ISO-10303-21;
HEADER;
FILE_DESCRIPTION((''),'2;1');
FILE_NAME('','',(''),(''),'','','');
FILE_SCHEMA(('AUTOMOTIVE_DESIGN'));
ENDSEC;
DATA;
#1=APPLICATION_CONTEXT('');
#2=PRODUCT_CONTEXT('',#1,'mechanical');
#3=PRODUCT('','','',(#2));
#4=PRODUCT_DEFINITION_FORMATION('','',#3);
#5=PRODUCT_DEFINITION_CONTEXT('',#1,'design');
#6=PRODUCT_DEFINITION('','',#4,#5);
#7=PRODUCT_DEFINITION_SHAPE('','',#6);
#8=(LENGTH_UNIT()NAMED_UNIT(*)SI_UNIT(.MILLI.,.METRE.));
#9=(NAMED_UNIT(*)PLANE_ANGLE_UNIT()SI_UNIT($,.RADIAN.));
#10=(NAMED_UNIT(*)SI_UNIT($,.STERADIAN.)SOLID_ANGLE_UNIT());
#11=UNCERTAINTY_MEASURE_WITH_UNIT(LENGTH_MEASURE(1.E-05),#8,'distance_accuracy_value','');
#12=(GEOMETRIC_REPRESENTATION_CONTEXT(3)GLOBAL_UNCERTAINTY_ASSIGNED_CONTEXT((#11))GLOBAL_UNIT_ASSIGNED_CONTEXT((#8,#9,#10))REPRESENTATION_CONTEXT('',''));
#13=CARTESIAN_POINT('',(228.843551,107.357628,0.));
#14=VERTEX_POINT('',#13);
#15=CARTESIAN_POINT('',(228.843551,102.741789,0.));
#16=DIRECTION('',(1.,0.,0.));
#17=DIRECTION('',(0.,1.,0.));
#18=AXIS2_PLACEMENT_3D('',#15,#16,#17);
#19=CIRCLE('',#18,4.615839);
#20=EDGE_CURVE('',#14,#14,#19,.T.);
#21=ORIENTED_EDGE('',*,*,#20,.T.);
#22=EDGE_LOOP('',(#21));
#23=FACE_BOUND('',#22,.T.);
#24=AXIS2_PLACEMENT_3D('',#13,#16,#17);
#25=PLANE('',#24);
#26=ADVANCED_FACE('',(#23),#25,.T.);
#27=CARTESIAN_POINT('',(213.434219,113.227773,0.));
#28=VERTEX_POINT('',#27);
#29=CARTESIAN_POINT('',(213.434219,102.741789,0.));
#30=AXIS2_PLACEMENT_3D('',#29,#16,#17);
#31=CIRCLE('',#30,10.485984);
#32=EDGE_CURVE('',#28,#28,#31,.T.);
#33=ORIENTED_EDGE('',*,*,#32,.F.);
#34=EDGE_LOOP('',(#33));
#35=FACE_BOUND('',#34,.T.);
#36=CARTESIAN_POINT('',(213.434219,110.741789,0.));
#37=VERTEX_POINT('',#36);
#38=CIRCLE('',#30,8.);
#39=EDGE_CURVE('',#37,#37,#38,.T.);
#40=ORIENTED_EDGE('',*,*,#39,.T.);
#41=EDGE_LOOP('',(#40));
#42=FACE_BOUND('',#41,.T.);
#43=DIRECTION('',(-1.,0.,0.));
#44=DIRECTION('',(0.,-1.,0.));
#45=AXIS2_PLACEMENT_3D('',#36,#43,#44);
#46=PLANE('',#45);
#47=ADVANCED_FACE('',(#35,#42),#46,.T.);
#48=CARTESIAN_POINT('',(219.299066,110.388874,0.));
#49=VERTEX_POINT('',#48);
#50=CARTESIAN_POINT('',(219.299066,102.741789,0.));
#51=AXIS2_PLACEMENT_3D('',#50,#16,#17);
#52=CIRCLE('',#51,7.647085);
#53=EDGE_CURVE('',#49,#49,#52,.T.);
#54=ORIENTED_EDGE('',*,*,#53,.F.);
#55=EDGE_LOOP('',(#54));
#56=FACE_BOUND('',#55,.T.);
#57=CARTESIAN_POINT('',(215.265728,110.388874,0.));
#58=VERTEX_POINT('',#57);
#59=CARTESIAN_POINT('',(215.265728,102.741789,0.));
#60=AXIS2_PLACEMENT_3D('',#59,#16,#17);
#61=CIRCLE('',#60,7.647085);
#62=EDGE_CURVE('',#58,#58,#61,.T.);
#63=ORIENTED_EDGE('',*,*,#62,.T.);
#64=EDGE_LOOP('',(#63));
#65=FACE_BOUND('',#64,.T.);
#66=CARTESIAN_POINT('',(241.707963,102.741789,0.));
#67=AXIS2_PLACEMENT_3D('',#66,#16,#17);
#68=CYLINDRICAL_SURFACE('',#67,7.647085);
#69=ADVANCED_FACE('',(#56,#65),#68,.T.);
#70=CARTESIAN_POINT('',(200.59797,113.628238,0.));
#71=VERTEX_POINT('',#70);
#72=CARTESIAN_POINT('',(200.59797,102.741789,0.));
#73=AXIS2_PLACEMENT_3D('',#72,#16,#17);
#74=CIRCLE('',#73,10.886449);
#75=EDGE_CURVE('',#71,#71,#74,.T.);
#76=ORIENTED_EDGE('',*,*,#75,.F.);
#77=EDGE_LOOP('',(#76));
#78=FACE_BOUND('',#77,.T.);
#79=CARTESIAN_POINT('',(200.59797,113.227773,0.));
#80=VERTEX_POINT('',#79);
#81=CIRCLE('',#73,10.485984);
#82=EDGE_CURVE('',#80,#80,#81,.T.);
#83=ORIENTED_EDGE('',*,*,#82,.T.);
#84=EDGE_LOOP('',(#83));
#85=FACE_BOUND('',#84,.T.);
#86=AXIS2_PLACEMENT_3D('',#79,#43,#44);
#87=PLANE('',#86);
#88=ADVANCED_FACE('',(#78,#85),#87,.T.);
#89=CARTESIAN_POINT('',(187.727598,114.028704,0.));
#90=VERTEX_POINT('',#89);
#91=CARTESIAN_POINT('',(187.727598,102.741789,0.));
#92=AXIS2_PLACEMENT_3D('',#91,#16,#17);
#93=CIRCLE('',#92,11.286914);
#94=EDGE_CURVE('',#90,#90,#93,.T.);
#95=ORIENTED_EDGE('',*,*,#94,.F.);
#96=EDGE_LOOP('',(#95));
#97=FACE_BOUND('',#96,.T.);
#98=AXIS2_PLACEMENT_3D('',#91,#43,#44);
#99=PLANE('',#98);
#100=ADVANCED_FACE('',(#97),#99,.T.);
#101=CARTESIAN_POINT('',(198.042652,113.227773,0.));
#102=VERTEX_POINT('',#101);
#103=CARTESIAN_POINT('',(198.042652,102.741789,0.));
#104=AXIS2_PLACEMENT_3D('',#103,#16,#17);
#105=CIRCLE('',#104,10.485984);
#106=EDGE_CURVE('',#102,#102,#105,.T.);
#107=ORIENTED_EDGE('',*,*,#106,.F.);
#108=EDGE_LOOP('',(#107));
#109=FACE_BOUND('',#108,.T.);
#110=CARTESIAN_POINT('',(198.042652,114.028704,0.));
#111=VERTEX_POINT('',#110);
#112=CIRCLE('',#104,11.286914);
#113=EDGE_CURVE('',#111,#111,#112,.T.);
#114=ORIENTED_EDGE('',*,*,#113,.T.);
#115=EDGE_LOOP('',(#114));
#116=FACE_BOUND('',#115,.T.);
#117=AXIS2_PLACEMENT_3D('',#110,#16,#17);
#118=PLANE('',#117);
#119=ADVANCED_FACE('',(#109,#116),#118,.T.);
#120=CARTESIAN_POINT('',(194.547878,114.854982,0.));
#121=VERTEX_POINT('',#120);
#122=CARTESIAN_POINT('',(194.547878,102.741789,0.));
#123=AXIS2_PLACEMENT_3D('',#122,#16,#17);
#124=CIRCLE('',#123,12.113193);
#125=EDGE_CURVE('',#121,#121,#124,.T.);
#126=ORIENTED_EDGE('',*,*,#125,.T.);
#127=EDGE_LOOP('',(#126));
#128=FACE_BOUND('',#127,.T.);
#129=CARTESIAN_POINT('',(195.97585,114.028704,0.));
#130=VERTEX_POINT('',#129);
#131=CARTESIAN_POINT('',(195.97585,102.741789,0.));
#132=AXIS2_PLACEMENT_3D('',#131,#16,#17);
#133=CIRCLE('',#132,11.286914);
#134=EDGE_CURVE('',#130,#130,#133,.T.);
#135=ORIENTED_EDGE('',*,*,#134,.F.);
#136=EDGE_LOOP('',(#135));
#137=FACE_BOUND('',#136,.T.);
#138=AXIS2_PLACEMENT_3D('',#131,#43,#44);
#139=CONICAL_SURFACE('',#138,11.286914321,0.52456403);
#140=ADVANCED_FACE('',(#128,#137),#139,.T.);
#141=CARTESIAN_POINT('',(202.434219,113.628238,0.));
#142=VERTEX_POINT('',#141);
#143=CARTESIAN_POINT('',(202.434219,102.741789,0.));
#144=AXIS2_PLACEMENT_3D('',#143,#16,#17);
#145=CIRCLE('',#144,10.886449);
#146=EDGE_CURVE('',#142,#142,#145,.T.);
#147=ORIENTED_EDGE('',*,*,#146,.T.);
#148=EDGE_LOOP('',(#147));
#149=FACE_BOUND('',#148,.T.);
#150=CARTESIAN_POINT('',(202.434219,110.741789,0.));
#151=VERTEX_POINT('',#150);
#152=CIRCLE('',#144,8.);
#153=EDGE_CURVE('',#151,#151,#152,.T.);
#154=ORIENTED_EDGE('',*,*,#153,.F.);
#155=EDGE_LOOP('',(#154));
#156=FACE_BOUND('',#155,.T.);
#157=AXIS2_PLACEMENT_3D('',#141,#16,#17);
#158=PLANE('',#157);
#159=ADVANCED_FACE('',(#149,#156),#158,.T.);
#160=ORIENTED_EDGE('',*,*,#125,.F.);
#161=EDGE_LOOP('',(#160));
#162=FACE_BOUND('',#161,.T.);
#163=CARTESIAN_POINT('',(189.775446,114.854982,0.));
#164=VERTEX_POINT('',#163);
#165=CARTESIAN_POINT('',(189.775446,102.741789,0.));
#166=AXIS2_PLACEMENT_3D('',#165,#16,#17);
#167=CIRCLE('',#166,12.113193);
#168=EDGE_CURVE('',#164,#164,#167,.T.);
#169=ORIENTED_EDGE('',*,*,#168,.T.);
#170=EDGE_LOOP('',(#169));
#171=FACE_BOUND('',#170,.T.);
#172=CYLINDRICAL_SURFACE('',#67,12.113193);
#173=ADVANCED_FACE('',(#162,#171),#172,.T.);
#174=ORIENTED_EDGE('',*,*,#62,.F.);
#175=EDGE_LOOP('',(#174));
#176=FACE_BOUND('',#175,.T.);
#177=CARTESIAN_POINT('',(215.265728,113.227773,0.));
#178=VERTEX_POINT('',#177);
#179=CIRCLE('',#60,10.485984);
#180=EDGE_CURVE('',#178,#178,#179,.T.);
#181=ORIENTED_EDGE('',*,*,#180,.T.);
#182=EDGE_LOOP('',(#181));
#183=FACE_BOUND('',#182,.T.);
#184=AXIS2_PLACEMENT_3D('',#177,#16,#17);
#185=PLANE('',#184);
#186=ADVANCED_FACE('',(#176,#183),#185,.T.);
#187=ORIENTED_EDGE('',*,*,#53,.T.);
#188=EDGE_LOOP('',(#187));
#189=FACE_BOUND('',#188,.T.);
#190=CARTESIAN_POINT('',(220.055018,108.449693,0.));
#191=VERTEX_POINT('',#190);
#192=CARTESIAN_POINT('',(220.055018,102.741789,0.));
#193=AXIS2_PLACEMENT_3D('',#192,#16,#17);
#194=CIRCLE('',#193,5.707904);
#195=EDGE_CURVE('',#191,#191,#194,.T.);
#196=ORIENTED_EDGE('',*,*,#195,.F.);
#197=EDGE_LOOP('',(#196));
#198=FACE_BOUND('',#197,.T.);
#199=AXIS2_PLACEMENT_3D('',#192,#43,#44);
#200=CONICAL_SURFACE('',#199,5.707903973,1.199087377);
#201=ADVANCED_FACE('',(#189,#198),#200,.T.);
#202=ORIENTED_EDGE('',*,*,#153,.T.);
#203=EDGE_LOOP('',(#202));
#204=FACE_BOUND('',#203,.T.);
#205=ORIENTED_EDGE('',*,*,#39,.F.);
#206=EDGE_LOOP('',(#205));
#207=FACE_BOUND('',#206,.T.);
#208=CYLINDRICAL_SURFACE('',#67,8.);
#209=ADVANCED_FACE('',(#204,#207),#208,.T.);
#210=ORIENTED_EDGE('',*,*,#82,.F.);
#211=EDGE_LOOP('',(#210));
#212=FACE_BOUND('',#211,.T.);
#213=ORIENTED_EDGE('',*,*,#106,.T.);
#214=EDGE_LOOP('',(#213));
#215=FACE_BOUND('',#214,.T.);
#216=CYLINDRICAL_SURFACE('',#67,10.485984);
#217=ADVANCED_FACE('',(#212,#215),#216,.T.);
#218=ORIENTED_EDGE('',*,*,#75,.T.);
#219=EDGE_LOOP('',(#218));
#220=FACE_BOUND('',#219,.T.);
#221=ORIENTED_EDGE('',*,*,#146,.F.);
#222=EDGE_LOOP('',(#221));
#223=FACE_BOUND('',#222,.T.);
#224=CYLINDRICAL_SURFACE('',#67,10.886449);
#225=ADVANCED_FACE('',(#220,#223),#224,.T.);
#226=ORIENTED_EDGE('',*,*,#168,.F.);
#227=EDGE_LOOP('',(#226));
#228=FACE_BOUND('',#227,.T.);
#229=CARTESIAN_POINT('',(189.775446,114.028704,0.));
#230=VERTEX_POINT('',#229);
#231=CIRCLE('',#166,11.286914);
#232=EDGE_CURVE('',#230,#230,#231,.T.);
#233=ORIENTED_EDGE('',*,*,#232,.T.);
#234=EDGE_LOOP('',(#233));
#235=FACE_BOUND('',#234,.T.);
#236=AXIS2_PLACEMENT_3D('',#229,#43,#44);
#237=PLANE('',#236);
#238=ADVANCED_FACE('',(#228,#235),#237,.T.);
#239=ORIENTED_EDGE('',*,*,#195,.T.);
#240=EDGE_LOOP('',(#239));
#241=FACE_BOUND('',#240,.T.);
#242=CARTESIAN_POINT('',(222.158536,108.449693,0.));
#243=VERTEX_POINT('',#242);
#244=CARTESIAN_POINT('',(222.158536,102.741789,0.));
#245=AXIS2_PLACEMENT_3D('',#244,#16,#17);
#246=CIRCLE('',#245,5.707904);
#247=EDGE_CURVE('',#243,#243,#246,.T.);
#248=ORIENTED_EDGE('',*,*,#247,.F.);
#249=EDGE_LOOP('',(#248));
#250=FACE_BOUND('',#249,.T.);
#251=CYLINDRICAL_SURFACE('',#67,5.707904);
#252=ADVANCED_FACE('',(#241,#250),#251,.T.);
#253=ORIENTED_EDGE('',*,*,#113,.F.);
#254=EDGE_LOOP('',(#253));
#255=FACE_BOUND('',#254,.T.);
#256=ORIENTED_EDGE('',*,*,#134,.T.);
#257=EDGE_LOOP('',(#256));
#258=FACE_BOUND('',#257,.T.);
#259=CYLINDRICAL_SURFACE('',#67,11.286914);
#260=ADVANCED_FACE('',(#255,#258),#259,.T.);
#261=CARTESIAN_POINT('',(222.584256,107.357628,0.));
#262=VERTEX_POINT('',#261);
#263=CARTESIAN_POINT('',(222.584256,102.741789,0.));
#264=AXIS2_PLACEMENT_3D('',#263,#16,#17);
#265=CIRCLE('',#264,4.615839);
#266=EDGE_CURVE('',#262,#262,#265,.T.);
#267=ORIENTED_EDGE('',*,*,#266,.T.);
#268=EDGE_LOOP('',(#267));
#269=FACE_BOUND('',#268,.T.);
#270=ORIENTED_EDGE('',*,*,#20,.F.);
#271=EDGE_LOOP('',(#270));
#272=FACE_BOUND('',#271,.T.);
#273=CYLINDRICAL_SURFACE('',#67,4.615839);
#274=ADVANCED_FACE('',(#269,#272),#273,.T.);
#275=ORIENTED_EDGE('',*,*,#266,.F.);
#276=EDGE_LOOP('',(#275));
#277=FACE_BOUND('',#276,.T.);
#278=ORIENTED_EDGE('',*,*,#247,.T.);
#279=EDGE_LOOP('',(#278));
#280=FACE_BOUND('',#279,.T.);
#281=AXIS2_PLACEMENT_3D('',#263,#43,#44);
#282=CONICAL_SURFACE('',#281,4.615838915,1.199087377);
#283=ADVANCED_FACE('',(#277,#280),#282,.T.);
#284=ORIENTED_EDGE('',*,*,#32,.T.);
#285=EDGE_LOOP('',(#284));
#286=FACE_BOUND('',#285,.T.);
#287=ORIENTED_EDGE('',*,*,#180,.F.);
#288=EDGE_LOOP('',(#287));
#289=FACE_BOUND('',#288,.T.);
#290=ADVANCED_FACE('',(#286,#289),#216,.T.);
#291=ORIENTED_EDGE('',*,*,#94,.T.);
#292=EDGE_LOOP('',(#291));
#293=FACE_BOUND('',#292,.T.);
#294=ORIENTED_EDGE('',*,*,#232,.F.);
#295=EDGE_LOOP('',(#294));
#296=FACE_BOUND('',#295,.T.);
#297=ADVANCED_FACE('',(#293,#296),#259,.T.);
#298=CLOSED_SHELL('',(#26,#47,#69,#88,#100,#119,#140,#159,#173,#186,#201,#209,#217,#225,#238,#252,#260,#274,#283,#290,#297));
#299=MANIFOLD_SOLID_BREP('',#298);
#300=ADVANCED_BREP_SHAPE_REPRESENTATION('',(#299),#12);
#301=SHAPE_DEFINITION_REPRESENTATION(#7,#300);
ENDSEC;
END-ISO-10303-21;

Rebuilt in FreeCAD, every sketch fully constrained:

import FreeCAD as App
import Part
import Sketcher

V = App.Vector
Q = App.Units.Quantity

doc = App.newDocument("Part")
body = doc.addObject("PartDesign::Body", "Body")

# Sketch on XY plane
sketch1 = doc.addObject("Sketcher::SketchObject", "Sketch")
body.addObject(sketch1)
sketch1.AttachmentSupport = (doc.XY_Plane, [""])
sketch1.MapMode = "FlatFace"
sketch1.addGeometry(Part.LineSegment(V(187.727598, 114.028704, 0), V(187.727598, 102.741789, 0)), False)
sketch1.addGeometry(Part.LineSegment(V(187.727598, 102.741789, 0), V(228.843551, 102.741789, 0)), False)
sketch1.addGeometry(Part.LineSegment(V(228.843551, 102.741789, 0), V(228.843551, 107.357628, 0)), False)
sketch1.addGeometry(Part.LineSegment(V(228.843551, 107.357628, 0), V(222.584256, 107.357628, 0)), False)
sketch1.addGeometry(Part.LineSegment(V(222.584256, 107.357628, 0), V(222.158536, 108.449693, 0)), False)
sketch1.addGeometry(Part.LineSegment(V(222.158536, 108.449693, 0), V(220.055018, 108.449693, 0)), False)
sketch1.addGeometry(Part.LineSegment(V(220.055018, 108.449693, 0), V(219.299066, 110.388874, 0)), False)
sketch1.addGeometry(Part.LineSegment(V(219.299066, 110.388874, 0), V(215.265728, 110.388874, 0)), False)
sketch1.addGeometry(Part.LineSegment(V(215.265728, 110.388874, 0), V(215.265728, 113.227773, 0)), False)
sketch1.addGeometry(Part.LineSegment(V(215.265728, 113.227773, 0), V(213.434219, 113.227773, 0)), False)
sketch1.addGeometry(Part.LineSegment(V(213.434219, 113.227773, 0), V(213.434219, 110.741789, 0)), False)
sketch1.addGeometry(Part.LineSegment(V(213.434219, 110.741789, 0), V(202.434219, 110.741789, 0)), False)
sketch1.addGeometry(Part.LineSegment(V(202.434219, 110.741789, 0), V(202.434219, 113.628238, 0)), False)
sketch1.addGeometry(Part.LineSegment(V(202.434219, 113.628238, 0), V(200.59797, 113.628238, 0)), False)
sketch1.addGeometry(Part.LineSegment(V(200.59797, 113.628238, 0), V(200.59797, 113.227773, 0)), False)
sketch1.addGeometry(Part.LineSegment(V(200.59797, 113.227773, 0), V(198.042652, 113.227773, 0)), False)
sketch1.addGeometry(Part.LineSegment(V(198.042652, 113.227773, 0), V(198.042652, 114.028704, 0)), False)
sketch1.addGeometry(Part.LineSegment(V(198.042652, 114.028704, 0), V(195.97585, 114.028704, 0)), False)
sketch1.addGeometry(Part.LineSegment(V(195.97585, 114.028704, 0), V(194.547878, 114.854982, 0)), False)
sketch1.addGeometry(Part.LineSegment(V(194.547878, 114.854982, 0), V(189.775446, 114.854982, 0)), False)
sketch1.addGeometry(Part.LineSegment(V(189.775446, 114.854982, 0), V(189.775446, 114.028704, 0)), False)
sketch1.addGeometry(Part.LineSegment(V(189.775446, 114.028704, 0), V(187.727598, 114.028704, 0)), False)
sketch1.addGeometry(Part.LineSegment(V(228.843551, 102.741789, 0), V(187.727598, 102.741789, 0)), True)  # axis
sketch1.addConstraint(Sketcher.Constraint("Coincident", 0, 2, 1, 1))
sketch1.addConstraint(Sketcher.Constraint("Coincident", 1, 2, 2, 1))
sketch1.addConstraint(Sketcher.Constraint("Coincident", 2, 2, 3, 1))
sketch1.addConstraint(Sketcher.Constraint("Coincident", 3, 2, 4, 1))
sketch1.addConstraint(Sketcher.Constraint("Coincident", 4, 2, 5, 1))
sketch1.addConstraint(Sketcher.Constraint("Coincident", 5, 2, 6, 1))
sketch1.addConstraint(Sketcher.Constraint("Coincident", 6, 2, 7, 1))
sketch1.addConstraint(Sketcher.Constraint("Coincident", 7, 2, 8, 1))
sketch1.addConstraint(Sketcher.Constraint("Coincident", 8, 2, 9, 1))
sketch1.addConstraint(Sketcher.Constraint("Coincident", 9, 2, 10, 1))
sketch1.addConstraint(Sketcher.Constraint("Coincident", 10, 2, 11, 1))
sketch1.addConstraint(Sketcher.Constraint("Coincident", 11, 2, 12, 1))
sketch1.addConstraint(Sketcher.Constraint("Coincident", 12, 2, 13, 1))
sketch1.addConstraint(Sketcher.Constraint("Coincident", 13, 2, 14, 1))
sketch1.addConstraint(Sketcher.Constraint("Coincident", 14, 2, 15, 1))
sketch1.addConstraint(Sketcher.Constraint("Coincident", 15, 2, 16, 1))
sketch1.addConstraint(Sketcher.Constraint("Coincident", 16, 2, 17, 1))
sketch1.addConstraint(Sketcher.Constraint("Coincident", 17, 2, 18, 1))
sketch1.addConstraint(Sketcher.Constraint("Coincident", 18, 2, 19, 1))
sketch1.addConstraint(Sketcher.Constraint("Coincident", 19, 2, 20, 1))
sketch1.addConstraint(Sketcher.Constraint("Coincident", 20, 2, 21, 1))
sketch1.addConstraint(Sketcher.Constraint("Coincident", 21, 2, 0, 1))
sketch1.addConstraint(Sketcher.Constraint("Vertical", 0))
sketch1.addConstraint(Sketcher.Constraint("Horizontal", 1))
sketch1.addConstraint(Sketcher.Constraint("Vertical", 2))
sketch1.addConstraint(Sketcher.Constraint("Horizontal", 3))
sketch1.addConstraint(Sketcher.Constraint("Horizontal", 5))
sketch1.addConstraint(Sketcher.Constraint("Horizontal", 7))
sketch1.addConstraint(Sketcher.Constraint("Vertical", 8))
sketch1.addConstraint(Sketcher.Constraint("Horizontal", 9))
sketch1.addConstraint(Sketcher.Constraint("Vertical", 10))
sketch1.addConstraint(Sketcher.Constraint("Horizontal", 11))
sketch1.addConstraint(Sketcher.Constraint("Vertical", 12))
sketch1.addConstraint(Sketcher.Constraint("Horizontal", 13))
sketch1.addConstraint(Sketcher.Constraint("Vertical", 14))
sketch1.addConstraint(Sketcher.Constraint("Horizontal", 15))
sketch1.addConstraint(Sketcher.Constraint("Vertical", 16))
sketch1.addConstraint(Sketcher.Constraint("Horizontal", 17))
sketch1.addConstraint(Sketcher.Constraint("Horizontal", 19))
sketch1.addConstraint(Sketcher.Constraint("Vertical", 20))
sketch1.addConstraint(Sketcher.Constraint("Horizontal", 21))
sketch1.addConstraint(Sketcher.Constraint("Horizontal", 22))
sketch1.addConstraint(Sketcher.Constraint("Coincident", 22, 1, 1, 2))
sketch1.addConstraint(Sketcher.Constraint("Parallel", 4, 6))
sketch1.addConstraint(Sketcher.Constraint("Horizontal", 9, 2, 14, 2))
sketch1.addConstraint(Sketcher.Constraint("Horizontal", 17, 2, 20, 2))
sketch1.addConstraint(Sketcher.Constraint("Vertical", 21, 2, 22, 2))
sketch1.addConstraint(Sketcher.Constraint("DistanceX", 11, 2, 11, 1, Q("11 mm")))
sketch1.addConstraint(Sketcher.Constraint("DistanceY", 0, 2, 11, 2, Q("8 mm")))
sketch1.addConstraint(Sketcher.Constraint("DistanceX", 17, 2, 17, 1, Q("2.066801 mm")))
sketch1.addConstraint(Sketcher.Constraint("DistanceY", 8, 1, 8, 2, Q("2.838899 mm")))
sketch1.addConstraint(Sketcher.Constraint("Distance", 18, Q("1.6498 mm")))
sketch1.addConstraint(Sketcher.Constraint("DistanceX", 7, 2, 7, 1, Q("4.033338 mm")))
sketch1.addConstraint(Sketcher.Constraint("DistanceX", 9, 2, 9, 1, Q("1.831509 mm")))
sketch1.addConstraint(Sketcher.Constraint("DistanceX", 13, 2, 13, 1, Q("1.836249 mm")))
sketch1.addConstraint(Sketcher.Constraint("DistanceX", 15, 2, 15, 1, Q("2.555318 mm")))
sketch1.addConstraint(Sketcher.Constraint("DistanceX", 21, 2, 21, 1, Q("2.047848 mm")))
sketch1.addConstraint(Sketcher.Constraint("DistanceY", 2, 1, 2, 2, Q("4.615839 mm")))
sketch1.addConstraint(Sketcher.Constraint("DistanceY", 12, 1, 12, 2, Q("2.886449 mm")))
sketch1.addConstraint(Sketcher.Constraint("DistanceY", 16, 1, 16, 2, Q("0.800931 mm")))
sketch1.addConstraint(Sketcher.Constraint("DistanceY", 20, 2, 20, 1, Q("0.826279 mm")))
sketch1.addConstraint(Sketcher.Constraint("DistanceX", 9, 2, 5, 2, Q("6.620799 mm")))
sketch1.addConstraint(Sketcher.Constraint("Distance", 4, Q("1.172111 mm")))
sketch1.addConstraint(Sketcher.Constraint("DistanceX", 1, 1, 1, 2, Q("41.115953 mm")))
sketch1.addConstraint(Sketcher.Constraint("DistanceX", 3, 2, 3, 1, Q("6.259295 mm")))
sketch1.addConstraint(Sketcher.Constraint("DistanceX", 5, 2, 5, 1, Q("2.103518 mm")))
sketch1.addConstraint(Sketcher.Constraint("DistanceX", 19, 2, 19, 1, Q("4.772433 mm")))
sketch1.addConstraint(Sketcher.Constraint("DistanceY", -1, 1, 0, 2, Q("102.741789 mm")))
sketch1.addConstraint(Sketcher.Constraint("DistanceX", -1, 1, 1, 2, Q("228.843551 mm")))
revolution = doc.addObject("PartDesign::Revolution", "Revolution")
body.addObject(revolution)
revolution.Profile = sketch1
revolution.ReferenceAxis = (sketch1, ["Axis0"])
revolution.Angle = 360

doc.recompute()
